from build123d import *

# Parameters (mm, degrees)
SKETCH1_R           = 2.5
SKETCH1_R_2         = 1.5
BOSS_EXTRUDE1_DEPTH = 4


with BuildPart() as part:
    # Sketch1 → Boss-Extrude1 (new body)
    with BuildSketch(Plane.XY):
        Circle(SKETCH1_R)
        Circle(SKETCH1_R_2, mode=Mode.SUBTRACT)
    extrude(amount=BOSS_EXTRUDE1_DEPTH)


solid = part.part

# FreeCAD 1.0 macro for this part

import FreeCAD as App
import Part
import Sketcher

V = App.Vector
Q = App.Units.Quantity

doc = App.newDocument("Part")
body = doc.addObject("PartDesign::Body", "Body")

# Sketch on XY plane
sketch1 = body.newObject("Sketcher::SketchObject", "Sketch")
sketch1.AttachmentSupport = (doc.getObject("XY_Plane"), [""])
sketch1.MapMode = "FlatFace"
sketch1.addGeometry(Part.Circle(V(0, 0, 0), V(0, 0, 1), 2.5), False)
sketch1.addGeometry(Part.Circle(V(0, 0, 0), V(0, 0, 1), 1.5), False)
sketch1.addConstraint(Sketcher.Constraint("Coincident", 0, 3, -1, 1))
sketch1.addConstraint(Sketcher.Constraint("Coincident", 1, 3, -1, 1))
sketch1.addConstraint(Sketcher.Constraint("Diameter", 0, Q("5 mm")))
sketch1.addConstraint(Sketcher.Constraint("Diameter", 1, Q("3 mm")))
pad1 = body.newObject("PartDesign::Pad", "Pad")
pad1.Profile = sketch1
pad1.Length = 4

doc.recompute()
